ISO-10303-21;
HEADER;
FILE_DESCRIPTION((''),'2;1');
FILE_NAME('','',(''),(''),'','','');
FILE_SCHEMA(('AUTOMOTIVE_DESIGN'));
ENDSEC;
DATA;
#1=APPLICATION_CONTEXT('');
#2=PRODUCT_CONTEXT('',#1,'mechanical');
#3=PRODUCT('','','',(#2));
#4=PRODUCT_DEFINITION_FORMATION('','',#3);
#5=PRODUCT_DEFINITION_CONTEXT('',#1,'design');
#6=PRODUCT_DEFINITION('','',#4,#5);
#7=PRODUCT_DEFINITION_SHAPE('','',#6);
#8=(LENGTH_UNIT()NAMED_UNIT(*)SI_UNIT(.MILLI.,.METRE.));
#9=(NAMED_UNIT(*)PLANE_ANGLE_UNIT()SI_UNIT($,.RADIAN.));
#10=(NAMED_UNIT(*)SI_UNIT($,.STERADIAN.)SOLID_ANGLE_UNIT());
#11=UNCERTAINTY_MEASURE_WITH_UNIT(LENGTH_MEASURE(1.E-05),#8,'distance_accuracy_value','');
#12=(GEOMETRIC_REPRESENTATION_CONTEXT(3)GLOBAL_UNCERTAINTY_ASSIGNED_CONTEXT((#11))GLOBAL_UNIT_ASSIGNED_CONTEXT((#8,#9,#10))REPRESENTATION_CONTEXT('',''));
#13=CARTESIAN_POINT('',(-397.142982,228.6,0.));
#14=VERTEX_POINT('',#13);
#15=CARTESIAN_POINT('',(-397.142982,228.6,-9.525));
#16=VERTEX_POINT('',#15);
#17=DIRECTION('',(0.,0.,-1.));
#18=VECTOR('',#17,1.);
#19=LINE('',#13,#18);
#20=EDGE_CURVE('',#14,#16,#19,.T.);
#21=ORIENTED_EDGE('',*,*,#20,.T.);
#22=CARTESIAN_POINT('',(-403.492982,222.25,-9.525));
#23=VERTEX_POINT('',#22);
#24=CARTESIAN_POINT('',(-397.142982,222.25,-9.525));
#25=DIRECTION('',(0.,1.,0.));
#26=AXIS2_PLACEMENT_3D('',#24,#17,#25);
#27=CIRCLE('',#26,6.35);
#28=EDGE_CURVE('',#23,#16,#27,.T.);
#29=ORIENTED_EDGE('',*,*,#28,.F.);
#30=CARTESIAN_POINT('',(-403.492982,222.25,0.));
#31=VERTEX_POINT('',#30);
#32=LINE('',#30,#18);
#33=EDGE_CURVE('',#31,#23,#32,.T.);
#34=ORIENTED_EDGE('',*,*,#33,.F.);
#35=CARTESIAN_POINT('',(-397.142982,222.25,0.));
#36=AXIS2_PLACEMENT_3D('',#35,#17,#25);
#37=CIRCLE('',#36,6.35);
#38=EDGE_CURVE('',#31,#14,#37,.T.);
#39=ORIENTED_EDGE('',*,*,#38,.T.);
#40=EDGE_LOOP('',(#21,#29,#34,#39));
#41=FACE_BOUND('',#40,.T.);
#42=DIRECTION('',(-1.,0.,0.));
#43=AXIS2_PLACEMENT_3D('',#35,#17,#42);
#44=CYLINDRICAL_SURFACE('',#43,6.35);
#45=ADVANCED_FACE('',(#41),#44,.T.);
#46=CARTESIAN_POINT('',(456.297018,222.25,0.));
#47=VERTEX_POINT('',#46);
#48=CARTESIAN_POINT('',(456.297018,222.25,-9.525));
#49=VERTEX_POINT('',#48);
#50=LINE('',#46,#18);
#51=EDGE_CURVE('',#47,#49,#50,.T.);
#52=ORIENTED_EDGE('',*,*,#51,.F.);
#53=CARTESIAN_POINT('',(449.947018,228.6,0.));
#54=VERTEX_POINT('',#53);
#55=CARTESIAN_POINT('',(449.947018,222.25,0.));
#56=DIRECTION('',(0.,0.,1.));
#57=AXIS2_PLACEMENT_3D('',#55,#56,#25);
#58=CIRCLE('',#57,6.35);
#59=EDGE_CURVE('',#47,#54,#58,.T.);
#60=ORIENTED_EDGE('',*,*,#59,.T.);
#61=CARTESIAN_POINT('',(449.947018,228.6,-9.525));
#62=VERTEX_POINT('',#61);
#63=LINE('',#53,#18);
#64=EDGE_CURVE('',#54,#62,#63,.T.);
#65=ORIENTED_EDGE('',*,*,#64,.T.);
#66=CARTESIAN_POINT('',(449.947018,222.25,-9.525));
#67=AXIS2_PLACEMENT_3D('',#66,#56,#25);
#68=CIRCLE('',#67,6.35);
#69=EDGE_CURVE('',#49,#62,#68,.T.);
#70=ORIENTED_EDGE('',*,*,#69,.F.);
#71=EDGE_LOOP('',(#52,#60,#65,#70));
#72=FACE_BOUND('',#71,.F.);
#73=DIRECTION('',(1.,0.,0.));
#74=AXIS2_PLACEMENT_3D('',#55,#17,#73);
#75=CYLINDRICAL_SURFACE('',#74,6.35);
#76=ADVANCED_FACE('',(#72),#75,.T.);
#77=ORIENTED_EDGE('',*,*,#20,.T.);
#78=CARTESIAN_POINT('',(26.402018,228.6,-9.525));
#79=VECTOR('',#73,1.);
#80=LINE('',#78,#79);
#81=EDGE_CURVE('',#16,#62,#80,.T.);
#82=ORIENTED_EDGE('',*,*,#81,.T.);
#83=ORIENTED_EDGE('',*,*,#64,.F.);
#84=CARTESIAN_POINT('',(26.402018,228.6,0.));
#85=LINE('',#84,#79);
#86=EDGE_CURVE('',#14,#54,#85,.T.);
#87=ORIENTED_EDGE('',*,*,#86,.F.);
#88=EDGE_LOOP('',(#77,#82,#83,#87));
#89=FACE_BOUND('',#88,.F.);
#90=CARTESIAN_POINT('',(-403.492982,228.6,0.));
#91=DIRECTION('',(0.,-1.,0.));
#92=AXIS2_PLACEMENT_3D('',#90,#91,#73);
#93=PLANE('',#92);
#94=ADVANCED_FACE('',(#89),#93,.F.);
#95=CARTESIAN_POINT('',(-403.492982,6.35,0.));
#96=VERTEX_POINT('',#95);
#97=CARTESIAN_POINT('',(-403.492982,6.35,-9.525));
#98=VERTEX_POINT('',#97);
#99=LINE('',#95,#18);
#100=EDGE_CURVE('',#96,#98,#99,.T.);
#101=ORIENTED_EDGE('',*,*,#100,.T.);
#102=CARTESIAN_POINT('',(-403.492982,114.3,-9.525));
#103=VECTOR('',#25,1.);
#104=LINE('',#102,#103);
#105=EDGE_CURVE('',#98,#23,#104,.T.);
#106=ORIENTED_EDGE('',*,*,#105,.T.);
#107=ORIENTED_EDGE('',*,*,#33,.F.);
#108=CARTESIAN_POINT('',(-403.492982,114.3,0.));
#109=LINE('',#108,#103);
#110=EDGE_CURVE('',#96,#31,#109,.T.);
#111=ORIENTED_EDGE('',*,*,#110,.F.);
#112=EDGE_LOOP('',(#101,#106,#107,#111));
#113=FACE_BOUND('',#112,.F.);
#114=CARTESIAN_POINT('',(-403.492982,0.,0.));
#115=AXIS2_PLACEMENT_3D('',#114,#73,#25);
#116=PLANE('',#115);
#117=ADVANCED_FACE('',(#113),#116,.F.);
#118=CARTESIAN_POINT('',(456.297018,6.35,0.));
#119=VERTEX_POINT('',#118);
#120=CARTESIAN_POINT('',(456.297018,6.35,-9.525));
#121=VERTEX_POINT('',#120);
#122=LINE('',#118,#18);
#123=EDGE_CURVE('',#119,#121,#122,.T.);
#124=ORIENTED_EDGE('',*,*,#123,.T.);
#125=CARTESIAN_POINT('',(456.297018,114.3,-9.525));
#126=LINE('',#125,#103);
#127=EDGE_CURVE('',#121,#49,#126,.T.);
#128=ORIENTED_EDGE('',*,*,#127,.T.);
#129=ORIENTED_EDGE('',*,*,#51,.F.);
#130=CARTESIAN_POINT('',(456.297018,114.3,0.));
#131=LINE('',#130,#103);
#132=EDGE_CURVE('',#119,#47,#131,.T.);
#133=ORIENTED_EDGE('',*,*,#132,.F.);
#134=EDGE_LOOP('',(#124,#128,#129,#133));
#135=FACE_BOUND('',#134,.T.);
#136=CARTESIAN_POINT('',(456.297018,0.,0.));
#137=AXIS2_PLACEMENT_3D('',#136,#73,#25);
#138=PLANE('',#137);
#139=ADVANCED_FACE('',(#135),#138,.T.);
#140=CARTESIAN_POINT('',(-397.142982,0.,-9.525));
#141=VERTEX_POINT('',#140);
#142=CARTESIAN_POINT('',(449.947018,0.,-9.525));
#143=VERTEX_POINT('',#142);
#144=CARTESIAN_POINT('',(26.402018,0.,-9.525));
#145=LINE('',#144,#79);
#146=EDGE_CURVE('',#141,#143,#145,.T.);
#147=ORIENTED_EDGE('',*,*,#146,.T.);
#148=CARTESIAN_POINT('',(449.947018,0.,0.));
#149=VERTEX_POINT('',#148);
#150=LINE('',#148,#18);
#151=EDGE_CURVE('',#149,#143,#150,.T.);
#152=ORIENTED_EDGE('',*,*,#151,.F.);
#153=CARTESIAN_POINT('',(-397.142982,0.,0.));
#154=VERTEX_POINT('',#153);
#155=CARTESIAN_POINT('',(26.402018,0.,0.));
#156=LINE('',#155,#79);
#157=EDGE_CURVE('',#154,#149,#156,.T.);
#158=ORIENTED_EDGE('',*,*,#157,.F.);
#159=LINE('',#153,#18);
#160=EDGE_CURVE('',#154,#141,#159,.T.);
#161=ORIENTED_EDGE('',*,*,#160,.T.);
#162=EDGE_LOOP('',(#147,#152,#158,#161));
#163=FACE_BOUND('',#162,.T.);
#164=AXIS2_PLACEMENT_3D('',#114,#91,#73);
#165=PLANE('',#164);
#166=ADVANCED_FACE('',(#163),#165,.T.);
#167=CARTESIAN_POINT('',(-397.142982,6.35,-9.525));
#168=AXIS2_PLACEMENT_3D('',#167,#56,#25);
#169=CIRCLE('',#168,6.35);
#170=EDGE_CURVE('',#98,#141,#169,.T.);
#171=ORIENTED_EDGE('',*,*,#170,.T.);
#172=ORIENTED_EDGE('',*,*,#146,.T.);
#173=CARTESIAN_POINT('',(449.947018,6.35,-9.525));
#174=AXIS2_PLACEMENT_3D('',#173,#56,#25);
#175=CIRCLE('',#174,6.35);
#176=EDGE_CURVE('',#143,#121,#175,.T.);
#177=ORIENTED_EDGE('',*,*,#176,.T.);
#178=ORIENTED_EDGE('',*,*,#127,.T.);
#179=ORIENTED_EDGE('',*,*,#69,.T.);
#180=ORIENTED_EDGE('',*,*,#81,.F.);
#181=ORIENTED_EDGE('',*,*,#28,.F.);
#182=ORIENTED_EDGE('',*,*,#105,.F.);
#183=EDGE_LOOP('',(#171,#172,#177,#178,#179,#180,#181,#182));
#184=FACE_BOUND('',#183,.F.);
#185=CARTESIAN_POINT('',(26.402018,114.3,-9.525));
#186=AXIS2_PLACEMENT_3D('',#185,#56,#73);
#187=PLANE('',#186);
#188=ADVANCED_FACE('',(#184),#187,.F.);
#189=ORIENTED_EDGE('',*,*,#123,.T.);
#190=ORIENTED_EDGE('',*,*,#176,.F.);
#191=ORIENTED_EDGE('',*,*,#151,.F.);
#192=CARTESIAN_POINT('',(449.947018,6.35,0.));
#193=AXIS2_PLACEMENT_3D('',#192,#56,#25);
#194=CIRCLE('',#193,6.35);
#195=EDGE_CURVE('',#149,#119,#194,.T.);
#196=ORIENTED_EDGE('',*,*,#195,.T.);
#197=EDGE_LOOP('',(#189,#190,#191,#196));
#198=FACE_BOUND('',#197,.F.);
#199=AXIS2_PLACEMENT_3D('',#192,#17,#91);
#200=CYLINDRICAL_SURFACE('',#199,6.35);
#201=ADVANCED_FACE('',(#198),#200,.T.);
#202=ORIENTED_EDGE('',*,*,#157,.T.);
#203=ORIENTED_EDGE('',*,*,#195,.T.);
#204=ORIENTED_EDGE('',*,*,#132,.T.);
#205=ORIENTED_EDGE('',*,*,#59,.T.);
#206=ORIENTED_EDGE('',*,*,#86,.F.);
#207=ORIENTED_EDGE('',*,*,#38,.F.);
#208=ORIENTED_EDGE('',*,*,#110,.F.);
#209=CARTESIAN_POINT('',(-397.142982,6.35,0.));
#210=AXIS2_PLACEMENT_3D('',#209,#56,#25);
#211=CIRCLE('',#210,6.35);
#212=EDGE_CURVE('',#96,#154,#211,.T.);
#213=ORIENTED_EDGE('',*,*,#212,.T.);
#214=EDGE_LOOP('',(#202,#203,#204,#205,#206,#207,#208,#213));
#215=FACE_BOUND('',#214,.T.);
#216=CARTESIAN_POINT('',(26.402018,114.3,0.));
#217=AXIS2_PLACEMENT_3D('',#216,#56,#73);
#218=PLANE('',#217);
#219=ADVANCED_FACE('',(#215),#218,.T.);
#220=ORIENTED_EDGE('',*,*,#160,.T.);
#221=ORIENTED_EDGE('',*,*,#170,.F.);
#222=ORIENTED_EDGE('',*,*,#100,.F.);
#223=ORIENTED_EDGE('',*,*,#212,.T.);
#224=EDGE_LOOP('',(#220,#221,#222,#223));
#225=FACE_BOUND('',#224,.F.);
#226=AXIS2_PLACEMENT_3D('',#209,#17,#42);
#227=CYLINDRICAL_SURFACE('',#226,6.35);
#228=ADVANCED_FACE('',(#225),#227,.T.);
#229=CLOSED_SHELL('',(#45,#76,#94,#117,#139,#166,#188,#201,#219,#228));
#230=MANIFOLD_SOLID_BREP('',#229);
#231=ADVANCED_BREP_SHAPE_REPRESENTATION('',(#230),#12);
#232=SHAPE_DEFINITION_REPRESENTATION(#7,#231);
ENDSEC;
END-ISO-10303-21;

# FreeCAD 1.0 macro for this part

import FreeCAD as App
import Part
import Sketcher

V = App.Vector
Q = App.Units.Quantity


def edges_at(feature, points):
    """Names of the edges that pass closest to the given points."""
    edges = feature.Shape.Edges
    near = lambda p: min(range(len(edges)), key=lambda i: edges[i].distToShape(Part.Vertex(*p))[0])
    return sorted({f"Edge{near(p) + 1}" for p in points})

doc = App.newDocument("Part")
params = doc.addObject("Spreadsheet::Sheet", "Params")
for row, (alias, value) in enumerate([
    ("sketch1_height", "9 in"),
    ("sketch1_width", "33.85 in"),
    ("pad1_length", "0.375 in"),
    ("fillet_radius", "0.25 in"),
], start=1):
    params.set(f"A{row}", alias)
    params.set(f"B{row}", "=" + value)
    params.setAlias(f"B{row}", alias)

body = doc.addObject("PartDesign::Body", "Body")

# Sketch on XY plane
sketch1 = doc.addObject("Sketcher::SketchObject", "Sketch")
body.addObject(sketch1)
sketch1.AttachmentSupport = (doc.XY_Plane, [""])
sketch1.MapMode = "FlatFace"
sketch1.addGeometry(Part.LineSegment(V(-403, 229, 0), V(-403, 0, 0)), False)
sketch1.addGeometry(Part.LineSegment(V(-403, 0, 0), V(456, 0, 0)), False)
sketch1.addGeometry(Part.LineSegment(V(456, 0, 0), V(456, 229, 0)), False)
sketch1.addGeometry(Part.LineSegment(V(456, 229, 0), V(-403, 229, 0)), False)
sketch1.addConstraint(Sketcher.Constraint("Coincident", 0, 2, 1, 1))
sketch1.addConstraint(Sketcher.Constraint("Coincident", 1, 2, 2, 1))
sketch1.addConstraint(Sketcher.Constraint("Coincident", 2, 2, 3, 1))
sketch1.addConstraint(Sketcher.Constraint("Coincident", 3, 2, 0, 1))
sketch1.addConstraint(Sketcher.Constraint("Vertical", 0))
sketch1.addConstraint(Sketcher.Constraint("Horizontal", 1))
sketch1.addConstraint(Sketcher.Constraint("Vertical", 2))
sketch1.addConstraint(Sketcher.Constraint("Horizontal", 3))
sketch1.addConstraint(Sketcher.Constraint("PointOnObject", 0, 2, -1))
sketch1.addConstraint(Sketcher.Constraint("DistanceY", 0, 2, 0, 1, Q("9 in")))
sketch1.addConstraint(Sketcher.Constraint("DistanceX", 1, 1, 1, 2, Q("33.85 in")))
sketch1.addConstraint(Sketcher.Constraint("DistanceX", 0, 2, -1, 1, Q("403.492982 mm")))
sketch1.setExpression("Constraints[9]", "Params.sketch1_height")
sketch1.setExpression("Constraints[10]", "Params.sketch1_width")
pad1 = doc.addObject("PartDesign::Pad", "Pad")
body.addObject(pad1)
pad1.Profile = sketch1
pad1.setExpression("Length", "Params.pad1_length")
pad1.Reversed = True
doc.recompute()

fillet = doc.addObject("PartDesign::Fillet", "Fillet")
body.addObject(fillet)
fillet.Base = (pad1, edges_at(pad1, [
    (-403.493, 228.6, -4.763),
    (-403.493, 0, -4.763),
    (456.297, 0, -4.763),
    (456.297, 228.6, -4.763),
]))
fillet.setExpression("Radius", "Params.fillet_radius")

doc.recompute()
